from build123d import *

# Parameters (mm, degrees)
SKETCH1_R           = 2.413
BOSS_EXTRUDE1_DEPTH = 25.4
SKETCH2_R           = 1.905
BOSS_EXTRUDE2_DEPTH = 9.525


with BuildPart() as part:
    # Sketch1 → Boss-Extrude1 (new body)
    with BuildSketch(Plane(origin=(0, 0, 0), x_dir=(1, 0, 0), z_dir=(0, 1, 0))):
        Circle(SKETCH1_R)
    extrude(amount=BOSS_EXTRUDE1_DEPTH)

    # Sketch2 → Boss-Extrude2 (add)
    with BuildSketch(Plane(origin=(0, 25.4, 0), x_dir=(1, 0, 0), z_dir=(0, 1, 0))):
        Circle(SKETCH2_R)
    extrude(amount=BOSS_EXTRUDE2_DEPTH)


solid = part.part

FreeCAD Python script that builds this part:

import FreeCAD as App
import Part
import Sketcher
Q = App.Units.Quantity

doc = App.newDocument("Part")
body = doc.addObject("PartDesign::Body", "Body")

# Sketch on XZ plane
sketch1 = doc.addObject("Sketcher::SketchObject", "Sketch")
body.addObject(sketch1)
sketch1.AttachmentSupport = (doc.XZ_Plane, [""])
sketch1.MapMode = "FlatFace"
sketch1.addGeometry(Part.Circle(App.Vector(0, 0, 0), App.Vector(0, 0, 1), 2.413), False)
sketch1.addConstraint([
    Sketcher.Constraint("Coincident", 0, 3, -1, 1),
    Sketcher.Constraint("Diameter", 0, Q("0.19 in")),
])
pad1 = doc.addObject("PartDesign::Pad", "Pad")
body.addObject(pad1)
pad1.Profile = sketch1
pad1.Length = Q("1 in")
pad1.Reversed = True

# Sketch on XZ plane
sketch2 = doc.addObject("Sketcher::SketchObject", "Sketch001")
body.addObject(sketch2)
sketch2.AttachmentSupport = (doc.XZ_Plane, [""])
sketch2.MapMode = "FlatFace"
sketch2.AttachmentOffset = App.Placement(App.Vector(0, 0, -1 * 25.4), App.Rotation())
sketch2.addGeometry(Part.Circle(App.Vector(0, 0, 0), App.Vector(0, 0, 1), 1.905), False)
sketch2.addConstraint([
    Sketcher.Constraint("Coincident", 0, 3, -1, 1),
    Sketcher.Constraint("Diameter", 0, Q("0.15 in")),
])
pad2 = doc.addObject("PartDesign::Pad", "Pad001")
body.addObject(pad2)
pad2.Profile = sketch2
pad2.Length = Q("0.375 in")
pad2.Reversed = True

doc.recompute()
